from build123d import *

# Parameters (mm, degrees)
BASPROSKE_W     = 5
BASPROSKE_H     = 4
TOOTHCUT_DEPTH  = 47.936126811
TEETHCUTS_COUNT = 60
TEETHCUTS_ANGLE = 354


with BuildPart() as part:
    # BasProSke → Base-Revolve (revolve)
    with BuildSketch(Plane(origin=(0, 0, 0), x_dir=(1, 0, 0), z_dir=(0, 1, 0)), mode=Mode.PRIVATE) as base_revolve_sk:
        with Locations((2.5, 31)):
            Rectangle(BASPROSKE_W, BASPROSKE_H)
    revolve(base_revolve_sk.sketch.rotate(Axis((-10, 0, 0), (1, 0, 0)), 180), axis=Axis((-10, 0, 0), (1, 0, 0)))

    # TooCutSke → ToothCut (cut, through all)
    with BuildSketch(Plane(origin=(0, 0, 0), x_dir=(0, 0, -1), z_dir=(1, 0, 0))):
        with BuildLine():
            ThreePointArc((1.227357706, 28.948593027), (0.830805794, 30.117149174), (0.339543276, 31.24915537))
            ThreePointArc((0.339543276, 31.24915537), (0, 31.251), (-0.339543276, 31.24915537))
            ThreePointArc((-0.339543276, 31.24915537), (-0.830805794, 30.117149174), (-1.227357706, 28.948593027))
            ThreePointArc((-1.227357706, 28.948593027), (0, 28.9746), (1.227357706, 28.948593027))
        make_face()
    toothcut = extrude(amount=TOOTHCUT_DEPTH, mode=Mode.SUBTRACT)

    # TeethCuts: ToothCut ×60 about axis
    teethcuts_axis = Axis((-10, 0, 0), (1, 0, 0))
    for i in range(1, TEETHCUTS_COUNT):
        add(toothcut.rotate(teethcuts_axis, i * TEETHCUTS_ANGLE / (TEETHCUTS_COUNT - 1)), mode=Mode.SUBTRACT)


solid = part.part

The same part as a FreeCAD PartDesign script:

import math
import FreeCAD as App
import Part
import Sketcher

V = App.Vector
Q = App.Units.Quantity


def add_polygon(sketch, points):
    """Adds a closed chain of lines whose ends are joined by coincident constraints."""
    first, n = sketch.GeometryCount, len(points)
    for a, b in zip(points, points[1:] + points[:1]):
        sketch.addGeometry(Part.LineSegment(App.Vector(*a, 0), App.Vector(*b, 0)), False)
    for i in range(n):
        sketch.addConstraint(Sketcher.Constraint("Coincident", first + i, 2, first + (i + 1) % n, 1))

doc = App.newDocument("Part")
body = doc.addObject("PartDesign::Body", "Body")

# Sketch on XZ plane
sketch1 = body.newObject("Sketcher::SketchObject", "Sketch")
sketch1.AttachmentSupport = (doc.getObject("XZ_Plane"), [""])
sketch1.MapMode = "FlatFace"
add_polygon(sketch1, [(0, -33), (0, -29), (5, -29), (5, -33)])  # lines 0-3
sketch1.addConstraint(Sketcher.Constraint("Vertical", 0))
sketch1.addConstraint(Sketcher.Constraint("Horizontal", 1))
sketch1.addConstraint(Sketcher.Constraint("Vertical", 2))
sketch1.addConstraint(Sketcher.Constraint("Horizontal", 3))
sketch1.addConstraint(Sketcher.Constraint("PointOnObject", 0, 2, -2))
sketch1.addConstraint(Sketcher.Constraint("DistanceX", 1, 1, 1, 2, Q("5 mm")))
sketch1.addConstraint(Sketcher.Constraint("DistanceY", 0, 1, 0, 2, Q("4 mm")))
sketch1.addConstraint(Sketcher.Constraint("DistanceY", 0, 2, -1, 1, Q("29 mm")))
revolution = body.newObject("PartDesign::Revolution", "Revolution")
revolution.Profile = sketch1
revolution.ReferenceAxis = (sketch1, ["H_Axis"])
revolution.Angle = 360

# Sketch on YZ plane
sketch2 = body.newObject("Sketcher::SketchObject", "Sketch001")
sketch2.AttachmentSupport = (doc.getObject("YZ_Plane"), [""])
sketch2.MapMode = "FlatFace"
sketch2.addGeometry(Part.ArcOfCircle(Part.Circle(V(24.7, 13.2, 0), V(0, 0, 1), 15), math.radians(-73.61), math.radians(-64.18)), False)
sketch2.addGeometry(Part.ArcOfCircle(Part.Circle(V(0, 0, 0), V(0, 0, 1), 31.3), math.radians(-0.62), math.radians(0.62)), False)
sketch2.addGeometry(Part.ArcOfCircle(Part.Circle(V(24.7, -13.2, 0), V(0, 0, 1), 15), math.radians(64.18), math.radians(73.61)), False)
sketch2.addGeometry(Part.ArcOfCircle(Part.Circle(V(0, 0, 0), V(0, 0, 1), 29), math.radians(-2.43), math.radians(2.43)), False)
sketch2.addConstraint(Sketcher.Constraint("Coincident", 0, 2, 1, 1))
sketch2.addConstraint(Sketcher.Constraint("Coincident", 1, 2, 2, 1))
sketch2.addConstraint(Sketcher.Constraint("Coincident", 2, 2, 3, 2))
sketch2.addConstraint(Sketcher.Constraint("Coincident", 3, 1, 0, 1))
sketch2.addConstraint(Sketcher.Constraint("Coincident", 1, 3, -1, 1))
sketch2.addConstraint(Sketcher.Constraint("Coincident", 3, 3, -1, 1))
sketch2.addConstraint(Sketcher.Constraint("Equal", 0, 2))
sketch2.addConstraint(Sketcher.Constraint("Symmetric", 0, 3, 2, 3, -1))
sketch2.addConstraint(Sketcher.Constraint("Radius", 0, Q("15 mm")))
sketch2.addConstraint(Sketcher.Constraint("Radius", 3, Q("28.9746 mm")))
sketch2.addConstraint(Sketcher.Constraint("Radius", 1, Q("31.250993 mm")))
sketch2.addConstraint(Sketcher.Constraint("DistanceY", 0, 2, 2, 2, Q("1.566901 mm")))
sketch2.addConstraint(Sketcher.Constraint("DistanceX", -1, 1, 0, 3, Q("24.716661 mm")))
pocket1 = body.newObject("PartDesign::Pocket", "Pocket")
pocket1.Profile = sketch2
pocket1.Type = "ThroughAll"
pocket1.Reversed = True
doc.recompute()

polarpattern = body.newObject("PartDesign::PolarPattern", "PolarPattern")
polarpattern.Originals = [pocket1]
polarpattern.Axis = (doc.getObject("X_Axis"), [""])
polarpattern.Angle = 360
polarpattern.Occurrences = 60
body.Tip = polarpattern

doc.recompute()
